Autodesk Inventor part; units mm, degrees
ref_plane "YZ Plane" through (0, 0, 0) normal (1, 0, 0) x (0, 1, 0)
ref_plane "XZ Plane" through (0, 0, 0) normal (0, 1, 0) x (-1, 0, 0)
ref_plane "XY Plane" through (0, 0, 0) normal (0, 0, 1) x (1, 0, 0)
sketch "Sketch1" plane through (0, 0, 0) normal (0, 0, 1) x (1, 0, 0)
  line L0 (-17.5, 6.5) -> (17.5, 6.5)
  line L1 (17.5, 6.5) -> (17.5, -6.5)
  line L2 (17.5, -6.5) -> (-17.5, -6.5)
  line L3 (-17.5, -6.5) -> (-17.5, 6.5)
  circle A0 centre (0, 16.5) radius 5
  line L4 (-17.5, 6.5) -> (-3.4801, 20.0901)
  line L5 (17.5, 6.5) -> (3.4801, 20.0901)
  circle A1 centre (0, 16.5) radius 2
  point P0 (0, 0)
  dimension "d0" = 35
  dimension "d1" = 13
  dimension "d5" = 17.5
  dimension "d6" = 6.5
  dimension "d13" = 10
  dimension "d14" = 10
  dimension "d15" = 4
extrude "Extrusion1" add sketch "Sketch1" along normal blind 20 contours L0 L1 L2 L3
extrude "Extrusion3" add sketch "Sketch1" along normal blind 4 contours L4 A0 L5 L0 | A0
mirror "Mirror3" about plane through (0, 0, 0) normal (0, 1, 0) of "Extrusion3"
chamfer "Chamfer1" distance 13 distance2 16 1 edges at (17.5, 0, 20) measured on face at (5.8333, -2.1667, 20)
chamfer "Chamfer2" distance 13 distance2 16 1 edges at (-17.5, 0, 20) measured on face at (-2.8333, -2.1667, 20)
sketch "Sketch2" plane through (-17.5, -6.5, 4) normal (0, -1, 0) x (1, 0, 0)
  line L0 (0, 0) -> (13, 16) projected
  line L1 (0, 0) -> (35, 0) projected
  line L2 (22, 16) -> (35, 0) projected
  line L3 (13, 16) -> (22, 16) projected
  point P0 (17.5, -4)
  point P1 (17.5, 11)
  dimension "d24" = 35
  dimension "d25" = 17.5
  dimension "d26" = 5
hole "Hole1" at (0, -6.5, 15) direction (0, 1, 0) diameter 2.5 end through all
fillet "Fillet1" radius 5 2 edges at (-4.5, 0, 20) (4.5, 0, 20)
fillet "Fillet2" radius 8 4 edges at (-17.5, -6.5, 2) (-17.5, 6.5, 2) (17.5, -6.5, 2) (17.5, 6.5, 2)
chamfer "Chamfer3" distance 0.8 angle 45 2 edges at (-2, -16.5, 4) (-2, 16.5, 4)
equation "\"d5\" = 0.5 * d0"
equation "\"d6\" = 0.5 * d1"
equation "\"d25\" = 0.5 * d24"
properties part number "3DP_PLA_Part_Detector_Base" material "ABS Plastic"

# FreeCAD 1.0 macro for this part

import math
import FreeCAD as App
import Part
import Sketcher
from FreeCAD import Vector
Q = App.Units.Quantity


def edges_at(feature, points):
    """Names of the edges that pass closest to the given points."""
    edges = feature.Shape.Edges
    near = lambda p: min(range(len(edges)), key=lambda i: edges[i].distToShape(Part.Vertex(*p))[0])
    return sorted({f"Edge{near(p) + 1}" for p in points})


def add_polygon(sketch, points):
    """Adds a closed chain of lines whose ends are joined by coincident constraints."""
    first, n = sketch.GeometryCount, len(points)
    for a, b in zip(points, points[1:] + points[:1]):
        sketch.addGeometry(Part.LineSegment(App.Vector(*a, 0), App.Vector(*b, 0)), False)
    for i in range(n):
        sketch.addConstraint(Sketcher.Constraint("Coincident", first + i, 2, first + (i + 1) % n, 1))

doc = App.newDocument("Part")
body = doc.addObject("PartDesign::Body", "Body")

sketch1 = body.newObject("Sketcher::SketchObject", "Sketch")
sketch1.AttachmentSupport = (doc.getObject("XY_Plane"), [""])
sketch1.MapMode = "FlatFace"
add_polygon(sketch1, [(17.5, 6.5), (-17.5, 6.5), (-17.5, -6.5), (17.5, -6.5)])
sketch1.addConstraint([
    Sketcher.Constraint("Horizontal", 0),
    Sketcher.Constraint("Vertical", 1),
    Sketcher.Constraint("Horizontal", 2),
    Sketcher.Constraint("Vertical", 3),
    Sketcher.Constraint("Symmetric", 0, 2, 2, 2, -1, 1),
    Sketcher.Constraint("DistanceX", 0, 2, 0, 1, Q("35 mm")),
    Sketcher.Constraint("DistanceY", 1, 2, 1, 1, Q("13 mm")),
])
pad1 = body.newObject("PartDesign::Pad", "Pad")
pad1.Profile = sketch1
pad1.Length = 20

sketch2 = body.newObject("Sketcher::SketchObject", "Sketch001")
sketch2.AttachmentSupport = (doc.getObject("XY_Plane"), [""])
sketch2.MapMode = "FlatFace"
sketch2.addGeometry([
    Part.LineSegment(Vector(-3.4801, 20.0901, 0), Vector(-17.5, 6.5, 0)),
    Part.LineSegment(Vector(-17.5, 6.5, 0), Vector(17.5, 6.5, 0)),
    Part.LineSegment(Vector(17.5, 6.5, 0), Vector(3.4801, 20.0901, 0)),
    Part.ArcOfCircle(Part.Circle(Vector(0, 16.5, 0), Vector(0, 0, 1), 5), math.radians(45.891351), math.radians(134.108649)),
    Part.Circle(Vector(0, 16.5, 0), Vector(0, 0, 1), 2),
], False)
sketch2.addConstraint([
    Sketcher.Constraint("Coincident", 0, 2, 1, 1),
    Sketcher.Constraint("Coincident", 1, 2, 2, 1),
    Sketcher.Constraint("Tangent", 2, 2, 3, 1),
    Sketcher.Constraint("Tangent", 3, 2, 0, 1),
    Sketcher.Constraint("Horizontal", 1),
    Sketcher.Constraint("Coincident", 4, 3, 3, 3),
    Sketcher.Constraint("Symmetric", 2, 2, 3, 2, -2),
    Sketcher.Constraint("Diameter", 4, Q("4 mm")),
    Sketcher.Constraint("Radius", 3, Q("5 mm")),
    Sketcher.Constraint("DistanceX", 1, 1, 1, 2, Q("35 mm")),
    Sketcher.Constraint("DistanceY", 0, 2, 3, 3, Q("10 mm")),
    Sketcher.Constraint("DistanceY", -1, 1, 0, 2, Q("6.5 mm")),
])
pad2 = body.newObject("PartDesign::Pad", "Pad001")
pad2.Profile = sketch2
pad2.Length = 4
doc.recompute()

mirrored = body.newObject("PartDesign::Mirrored", "Mirrored")
mirrored.Originals = [pad2]
mirrored.MirrorPlane = (doc.getObject("XZ_Plane"), [""])
body.Tip = mirrored
doc.recompute()

chamfer = body.newObject("PartDesign::Chamfer", "Chamfer")
chamfer.Base = (mirrored, edges_at(mirrored, [(17.5, 0, 20)]))
chamfer.ChamferType = "Two distances"
chamfer.Size = 13
chamfer.Size2 = 16
doc.recompute()

chamfer2 = body.newObject("PartDesign::Chamfer", "Chamfer001")
chamfer2.Base = (chamfer, edges_at(chamfer, [(-17.5, 0, 20)]))
chamfer2.ChamferType = "Two distances"
chamfer2.Size = 13
chamfer2.Size2 = 16

sketch3 = body.newObject("Sketcher::SketchObject", "Sketch002")
sketch3.AttachmentSupport = (doc.getObject("XZ_Plane"), [""])
sketch3.MapMode = "FlatFace"
sketch3.AttachmentOffset = App.Placement(Vector(0, 0, 6.5), App.Rotation())
sketch3.addGeometry(Part.Circle(Vector(0, 15, 0), Vector(0, 0, 1), 1.25), False)
sketch3.addConstraint([
    Sketcher.Constraint("PointOnObject", 0, 3, -2),
    Sketcher.Constraint("Diameter", 0, Q("2.5 mm")),
    Sketcher.Constraint("DistanceY", -1, 1, 0, 3, Q("15 mm")),
])
doc.recompute()
hole = body.newObject("PartDesign::Hole", "Hole")
hole.Profile = sketch3
hole.ThreadType = "None"
hole.Diameter = 2.5
hole.DepthType = "ThroughAll"
doc.recompute()

fillet = body.newObject("PartDesign::Fillet", "Fillet")
fillet.Base = (hole, edges_at(hole, [(-4.5, 0, 20), (4.5, 0, 20)]))
fillet.Radius = 5
doc.recompute()

fillet2 = body.newObject("PartDesign::Fillet", "Fillet001")
fillet2.Base = (fillet, edges_at(fillet, [
    (-17.5, -6.5, 2),
    (-17.5, 6.5, 2),
    (17.5, -6.5, 2),
    (17.5, 6.5, 2),
]))
fillet2.Radius = 8
doc.recompute()

chamfer3 = body.newObject("PartDesign::Chamfer", "Chamfer002")
chamfer3.Base = (fillet2, edges_at(fillet2, [(-2, -16.5, 4), (-2, 16.5, 4)]))
chamfer3.Size = 0.8

doc.recompute()
